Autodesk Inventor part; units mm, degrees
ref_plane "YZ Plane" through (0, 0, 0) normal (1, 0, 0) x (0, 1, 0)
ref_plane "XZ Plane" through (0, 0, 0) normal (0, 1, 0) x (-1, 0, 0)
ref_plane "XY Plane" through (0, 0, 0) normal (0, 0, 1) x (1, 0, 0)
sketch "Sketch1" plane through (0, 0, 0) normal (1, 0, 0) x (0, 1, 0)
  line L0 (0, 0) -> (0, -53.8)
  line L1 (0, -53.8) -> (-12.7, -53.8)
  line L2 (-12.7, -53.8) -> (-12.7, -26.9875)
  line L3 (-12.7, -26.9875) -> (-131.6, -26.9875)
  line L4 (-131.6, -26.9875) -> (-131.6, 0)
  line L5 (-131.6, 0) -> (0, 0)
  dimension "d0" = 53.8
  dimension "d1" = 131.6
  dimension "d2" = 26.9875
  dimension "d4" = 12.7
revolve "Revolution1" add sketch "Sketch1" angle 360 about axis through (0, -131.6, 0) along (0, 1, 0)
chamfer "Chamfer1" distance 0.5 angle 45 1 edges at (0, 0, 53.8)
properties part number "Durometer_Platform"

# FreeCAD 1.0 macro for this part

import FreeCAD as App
import Part
import Sketcher
Q = App.Units.Quantity


def edges_at(feature, points):
    """Names of the edges that pass closest to the given points."""
    edges = feature.Shape.Edges
    near = lambda p: min(range(len(edges)), key=lambda i: edges[i].distToShape(Part.Vertex(*p))[0])
    return sorted({f"Edge{near(p) + 1}" for p in points})


def add_polygon(sketch, points):
    """Adds a closed chain of lines whose ends are joined by coincident constraints."""
    first, n = sketch.GeometryCount, len(points)
    for a, b in zip(points, points[1:] + points[:1]):
        sketch.addGeometry(Part.LineSegment(App.Vector(*a, 0), App.Vector(*b, 0)), False)
    for i in range(n):
        sketch.addConstraint(Sketcher.Constraint("Coincident", first + i, 2, first + (i + 1) % n, 1))

doc = App.newDocument("Part")
body = doc.addObject("PartDesign::Body", "Body")

sketch1 = body.newObject("Sketcher::SketchObject", "Sketch")
sketch1.AttachmentSupport = (doc.getObject("YZ_Plane"), [""])
sketch1.MapMode = "FlatFace"
add_polygon(sketch1, [(0, -54), (0, 0), (-132, 0), (-132, -27), (-13, -27), (-13, -54)])
sketch1.addConstraint(Sketcher.Constraint("Vertical", 0))
sketch1.addConstraint(Sketcher.Constraint("Horizontal", 1))
sketch1.addConstraint(Sketcher.Constraint("Vertical", 2))
sketch1.addConstraint(Sketcher.Constraint("Horizontal", 3))
sketch1.addConstraint(Sketcher.Constraint("Vertical", 4))
sketch1.addConstraint(Sketcher.Constraint("Horizontal", 5))
sketch1.addConstraint(Sketcher.Constraint("Coincident", 0, 2, -1, 1))
sketch1.addConstraint(Sketcher.Constraint("DistanceX", 5, 1, 5, 2, Q("0.5 in")))
sketch1.addConstraint(Sketcher.Constraint("DistanceY", 2, 2, 2, 1, Q("1.0625 in")))
sketch1.addConstraint(Sketcher.Constraint("DistanceX", 1, 2, 1, 1, Q("5.1811 in")))
sketch1.addConstraint(Sketcher.Constraint("DistanceY", 0, 1, 0, 2, Q("2.1181 in")))
revolution = body.newObject("PartDesign::Revolution", "Revolution")
revolution.Profile = sketch1
revolution.ReferenceAxis = (sketch1, ["H_Axis"])
revolution.Angle = 360
doc.recompute()

chamfer = body.newObject("PartDesign::Chamfer", "Chamfer")
chamfer.Base = (revolution, edges_at(revolution, [(0, 0, 53.8)]))
chamfer.Size = 0.5

doc.recompute()
